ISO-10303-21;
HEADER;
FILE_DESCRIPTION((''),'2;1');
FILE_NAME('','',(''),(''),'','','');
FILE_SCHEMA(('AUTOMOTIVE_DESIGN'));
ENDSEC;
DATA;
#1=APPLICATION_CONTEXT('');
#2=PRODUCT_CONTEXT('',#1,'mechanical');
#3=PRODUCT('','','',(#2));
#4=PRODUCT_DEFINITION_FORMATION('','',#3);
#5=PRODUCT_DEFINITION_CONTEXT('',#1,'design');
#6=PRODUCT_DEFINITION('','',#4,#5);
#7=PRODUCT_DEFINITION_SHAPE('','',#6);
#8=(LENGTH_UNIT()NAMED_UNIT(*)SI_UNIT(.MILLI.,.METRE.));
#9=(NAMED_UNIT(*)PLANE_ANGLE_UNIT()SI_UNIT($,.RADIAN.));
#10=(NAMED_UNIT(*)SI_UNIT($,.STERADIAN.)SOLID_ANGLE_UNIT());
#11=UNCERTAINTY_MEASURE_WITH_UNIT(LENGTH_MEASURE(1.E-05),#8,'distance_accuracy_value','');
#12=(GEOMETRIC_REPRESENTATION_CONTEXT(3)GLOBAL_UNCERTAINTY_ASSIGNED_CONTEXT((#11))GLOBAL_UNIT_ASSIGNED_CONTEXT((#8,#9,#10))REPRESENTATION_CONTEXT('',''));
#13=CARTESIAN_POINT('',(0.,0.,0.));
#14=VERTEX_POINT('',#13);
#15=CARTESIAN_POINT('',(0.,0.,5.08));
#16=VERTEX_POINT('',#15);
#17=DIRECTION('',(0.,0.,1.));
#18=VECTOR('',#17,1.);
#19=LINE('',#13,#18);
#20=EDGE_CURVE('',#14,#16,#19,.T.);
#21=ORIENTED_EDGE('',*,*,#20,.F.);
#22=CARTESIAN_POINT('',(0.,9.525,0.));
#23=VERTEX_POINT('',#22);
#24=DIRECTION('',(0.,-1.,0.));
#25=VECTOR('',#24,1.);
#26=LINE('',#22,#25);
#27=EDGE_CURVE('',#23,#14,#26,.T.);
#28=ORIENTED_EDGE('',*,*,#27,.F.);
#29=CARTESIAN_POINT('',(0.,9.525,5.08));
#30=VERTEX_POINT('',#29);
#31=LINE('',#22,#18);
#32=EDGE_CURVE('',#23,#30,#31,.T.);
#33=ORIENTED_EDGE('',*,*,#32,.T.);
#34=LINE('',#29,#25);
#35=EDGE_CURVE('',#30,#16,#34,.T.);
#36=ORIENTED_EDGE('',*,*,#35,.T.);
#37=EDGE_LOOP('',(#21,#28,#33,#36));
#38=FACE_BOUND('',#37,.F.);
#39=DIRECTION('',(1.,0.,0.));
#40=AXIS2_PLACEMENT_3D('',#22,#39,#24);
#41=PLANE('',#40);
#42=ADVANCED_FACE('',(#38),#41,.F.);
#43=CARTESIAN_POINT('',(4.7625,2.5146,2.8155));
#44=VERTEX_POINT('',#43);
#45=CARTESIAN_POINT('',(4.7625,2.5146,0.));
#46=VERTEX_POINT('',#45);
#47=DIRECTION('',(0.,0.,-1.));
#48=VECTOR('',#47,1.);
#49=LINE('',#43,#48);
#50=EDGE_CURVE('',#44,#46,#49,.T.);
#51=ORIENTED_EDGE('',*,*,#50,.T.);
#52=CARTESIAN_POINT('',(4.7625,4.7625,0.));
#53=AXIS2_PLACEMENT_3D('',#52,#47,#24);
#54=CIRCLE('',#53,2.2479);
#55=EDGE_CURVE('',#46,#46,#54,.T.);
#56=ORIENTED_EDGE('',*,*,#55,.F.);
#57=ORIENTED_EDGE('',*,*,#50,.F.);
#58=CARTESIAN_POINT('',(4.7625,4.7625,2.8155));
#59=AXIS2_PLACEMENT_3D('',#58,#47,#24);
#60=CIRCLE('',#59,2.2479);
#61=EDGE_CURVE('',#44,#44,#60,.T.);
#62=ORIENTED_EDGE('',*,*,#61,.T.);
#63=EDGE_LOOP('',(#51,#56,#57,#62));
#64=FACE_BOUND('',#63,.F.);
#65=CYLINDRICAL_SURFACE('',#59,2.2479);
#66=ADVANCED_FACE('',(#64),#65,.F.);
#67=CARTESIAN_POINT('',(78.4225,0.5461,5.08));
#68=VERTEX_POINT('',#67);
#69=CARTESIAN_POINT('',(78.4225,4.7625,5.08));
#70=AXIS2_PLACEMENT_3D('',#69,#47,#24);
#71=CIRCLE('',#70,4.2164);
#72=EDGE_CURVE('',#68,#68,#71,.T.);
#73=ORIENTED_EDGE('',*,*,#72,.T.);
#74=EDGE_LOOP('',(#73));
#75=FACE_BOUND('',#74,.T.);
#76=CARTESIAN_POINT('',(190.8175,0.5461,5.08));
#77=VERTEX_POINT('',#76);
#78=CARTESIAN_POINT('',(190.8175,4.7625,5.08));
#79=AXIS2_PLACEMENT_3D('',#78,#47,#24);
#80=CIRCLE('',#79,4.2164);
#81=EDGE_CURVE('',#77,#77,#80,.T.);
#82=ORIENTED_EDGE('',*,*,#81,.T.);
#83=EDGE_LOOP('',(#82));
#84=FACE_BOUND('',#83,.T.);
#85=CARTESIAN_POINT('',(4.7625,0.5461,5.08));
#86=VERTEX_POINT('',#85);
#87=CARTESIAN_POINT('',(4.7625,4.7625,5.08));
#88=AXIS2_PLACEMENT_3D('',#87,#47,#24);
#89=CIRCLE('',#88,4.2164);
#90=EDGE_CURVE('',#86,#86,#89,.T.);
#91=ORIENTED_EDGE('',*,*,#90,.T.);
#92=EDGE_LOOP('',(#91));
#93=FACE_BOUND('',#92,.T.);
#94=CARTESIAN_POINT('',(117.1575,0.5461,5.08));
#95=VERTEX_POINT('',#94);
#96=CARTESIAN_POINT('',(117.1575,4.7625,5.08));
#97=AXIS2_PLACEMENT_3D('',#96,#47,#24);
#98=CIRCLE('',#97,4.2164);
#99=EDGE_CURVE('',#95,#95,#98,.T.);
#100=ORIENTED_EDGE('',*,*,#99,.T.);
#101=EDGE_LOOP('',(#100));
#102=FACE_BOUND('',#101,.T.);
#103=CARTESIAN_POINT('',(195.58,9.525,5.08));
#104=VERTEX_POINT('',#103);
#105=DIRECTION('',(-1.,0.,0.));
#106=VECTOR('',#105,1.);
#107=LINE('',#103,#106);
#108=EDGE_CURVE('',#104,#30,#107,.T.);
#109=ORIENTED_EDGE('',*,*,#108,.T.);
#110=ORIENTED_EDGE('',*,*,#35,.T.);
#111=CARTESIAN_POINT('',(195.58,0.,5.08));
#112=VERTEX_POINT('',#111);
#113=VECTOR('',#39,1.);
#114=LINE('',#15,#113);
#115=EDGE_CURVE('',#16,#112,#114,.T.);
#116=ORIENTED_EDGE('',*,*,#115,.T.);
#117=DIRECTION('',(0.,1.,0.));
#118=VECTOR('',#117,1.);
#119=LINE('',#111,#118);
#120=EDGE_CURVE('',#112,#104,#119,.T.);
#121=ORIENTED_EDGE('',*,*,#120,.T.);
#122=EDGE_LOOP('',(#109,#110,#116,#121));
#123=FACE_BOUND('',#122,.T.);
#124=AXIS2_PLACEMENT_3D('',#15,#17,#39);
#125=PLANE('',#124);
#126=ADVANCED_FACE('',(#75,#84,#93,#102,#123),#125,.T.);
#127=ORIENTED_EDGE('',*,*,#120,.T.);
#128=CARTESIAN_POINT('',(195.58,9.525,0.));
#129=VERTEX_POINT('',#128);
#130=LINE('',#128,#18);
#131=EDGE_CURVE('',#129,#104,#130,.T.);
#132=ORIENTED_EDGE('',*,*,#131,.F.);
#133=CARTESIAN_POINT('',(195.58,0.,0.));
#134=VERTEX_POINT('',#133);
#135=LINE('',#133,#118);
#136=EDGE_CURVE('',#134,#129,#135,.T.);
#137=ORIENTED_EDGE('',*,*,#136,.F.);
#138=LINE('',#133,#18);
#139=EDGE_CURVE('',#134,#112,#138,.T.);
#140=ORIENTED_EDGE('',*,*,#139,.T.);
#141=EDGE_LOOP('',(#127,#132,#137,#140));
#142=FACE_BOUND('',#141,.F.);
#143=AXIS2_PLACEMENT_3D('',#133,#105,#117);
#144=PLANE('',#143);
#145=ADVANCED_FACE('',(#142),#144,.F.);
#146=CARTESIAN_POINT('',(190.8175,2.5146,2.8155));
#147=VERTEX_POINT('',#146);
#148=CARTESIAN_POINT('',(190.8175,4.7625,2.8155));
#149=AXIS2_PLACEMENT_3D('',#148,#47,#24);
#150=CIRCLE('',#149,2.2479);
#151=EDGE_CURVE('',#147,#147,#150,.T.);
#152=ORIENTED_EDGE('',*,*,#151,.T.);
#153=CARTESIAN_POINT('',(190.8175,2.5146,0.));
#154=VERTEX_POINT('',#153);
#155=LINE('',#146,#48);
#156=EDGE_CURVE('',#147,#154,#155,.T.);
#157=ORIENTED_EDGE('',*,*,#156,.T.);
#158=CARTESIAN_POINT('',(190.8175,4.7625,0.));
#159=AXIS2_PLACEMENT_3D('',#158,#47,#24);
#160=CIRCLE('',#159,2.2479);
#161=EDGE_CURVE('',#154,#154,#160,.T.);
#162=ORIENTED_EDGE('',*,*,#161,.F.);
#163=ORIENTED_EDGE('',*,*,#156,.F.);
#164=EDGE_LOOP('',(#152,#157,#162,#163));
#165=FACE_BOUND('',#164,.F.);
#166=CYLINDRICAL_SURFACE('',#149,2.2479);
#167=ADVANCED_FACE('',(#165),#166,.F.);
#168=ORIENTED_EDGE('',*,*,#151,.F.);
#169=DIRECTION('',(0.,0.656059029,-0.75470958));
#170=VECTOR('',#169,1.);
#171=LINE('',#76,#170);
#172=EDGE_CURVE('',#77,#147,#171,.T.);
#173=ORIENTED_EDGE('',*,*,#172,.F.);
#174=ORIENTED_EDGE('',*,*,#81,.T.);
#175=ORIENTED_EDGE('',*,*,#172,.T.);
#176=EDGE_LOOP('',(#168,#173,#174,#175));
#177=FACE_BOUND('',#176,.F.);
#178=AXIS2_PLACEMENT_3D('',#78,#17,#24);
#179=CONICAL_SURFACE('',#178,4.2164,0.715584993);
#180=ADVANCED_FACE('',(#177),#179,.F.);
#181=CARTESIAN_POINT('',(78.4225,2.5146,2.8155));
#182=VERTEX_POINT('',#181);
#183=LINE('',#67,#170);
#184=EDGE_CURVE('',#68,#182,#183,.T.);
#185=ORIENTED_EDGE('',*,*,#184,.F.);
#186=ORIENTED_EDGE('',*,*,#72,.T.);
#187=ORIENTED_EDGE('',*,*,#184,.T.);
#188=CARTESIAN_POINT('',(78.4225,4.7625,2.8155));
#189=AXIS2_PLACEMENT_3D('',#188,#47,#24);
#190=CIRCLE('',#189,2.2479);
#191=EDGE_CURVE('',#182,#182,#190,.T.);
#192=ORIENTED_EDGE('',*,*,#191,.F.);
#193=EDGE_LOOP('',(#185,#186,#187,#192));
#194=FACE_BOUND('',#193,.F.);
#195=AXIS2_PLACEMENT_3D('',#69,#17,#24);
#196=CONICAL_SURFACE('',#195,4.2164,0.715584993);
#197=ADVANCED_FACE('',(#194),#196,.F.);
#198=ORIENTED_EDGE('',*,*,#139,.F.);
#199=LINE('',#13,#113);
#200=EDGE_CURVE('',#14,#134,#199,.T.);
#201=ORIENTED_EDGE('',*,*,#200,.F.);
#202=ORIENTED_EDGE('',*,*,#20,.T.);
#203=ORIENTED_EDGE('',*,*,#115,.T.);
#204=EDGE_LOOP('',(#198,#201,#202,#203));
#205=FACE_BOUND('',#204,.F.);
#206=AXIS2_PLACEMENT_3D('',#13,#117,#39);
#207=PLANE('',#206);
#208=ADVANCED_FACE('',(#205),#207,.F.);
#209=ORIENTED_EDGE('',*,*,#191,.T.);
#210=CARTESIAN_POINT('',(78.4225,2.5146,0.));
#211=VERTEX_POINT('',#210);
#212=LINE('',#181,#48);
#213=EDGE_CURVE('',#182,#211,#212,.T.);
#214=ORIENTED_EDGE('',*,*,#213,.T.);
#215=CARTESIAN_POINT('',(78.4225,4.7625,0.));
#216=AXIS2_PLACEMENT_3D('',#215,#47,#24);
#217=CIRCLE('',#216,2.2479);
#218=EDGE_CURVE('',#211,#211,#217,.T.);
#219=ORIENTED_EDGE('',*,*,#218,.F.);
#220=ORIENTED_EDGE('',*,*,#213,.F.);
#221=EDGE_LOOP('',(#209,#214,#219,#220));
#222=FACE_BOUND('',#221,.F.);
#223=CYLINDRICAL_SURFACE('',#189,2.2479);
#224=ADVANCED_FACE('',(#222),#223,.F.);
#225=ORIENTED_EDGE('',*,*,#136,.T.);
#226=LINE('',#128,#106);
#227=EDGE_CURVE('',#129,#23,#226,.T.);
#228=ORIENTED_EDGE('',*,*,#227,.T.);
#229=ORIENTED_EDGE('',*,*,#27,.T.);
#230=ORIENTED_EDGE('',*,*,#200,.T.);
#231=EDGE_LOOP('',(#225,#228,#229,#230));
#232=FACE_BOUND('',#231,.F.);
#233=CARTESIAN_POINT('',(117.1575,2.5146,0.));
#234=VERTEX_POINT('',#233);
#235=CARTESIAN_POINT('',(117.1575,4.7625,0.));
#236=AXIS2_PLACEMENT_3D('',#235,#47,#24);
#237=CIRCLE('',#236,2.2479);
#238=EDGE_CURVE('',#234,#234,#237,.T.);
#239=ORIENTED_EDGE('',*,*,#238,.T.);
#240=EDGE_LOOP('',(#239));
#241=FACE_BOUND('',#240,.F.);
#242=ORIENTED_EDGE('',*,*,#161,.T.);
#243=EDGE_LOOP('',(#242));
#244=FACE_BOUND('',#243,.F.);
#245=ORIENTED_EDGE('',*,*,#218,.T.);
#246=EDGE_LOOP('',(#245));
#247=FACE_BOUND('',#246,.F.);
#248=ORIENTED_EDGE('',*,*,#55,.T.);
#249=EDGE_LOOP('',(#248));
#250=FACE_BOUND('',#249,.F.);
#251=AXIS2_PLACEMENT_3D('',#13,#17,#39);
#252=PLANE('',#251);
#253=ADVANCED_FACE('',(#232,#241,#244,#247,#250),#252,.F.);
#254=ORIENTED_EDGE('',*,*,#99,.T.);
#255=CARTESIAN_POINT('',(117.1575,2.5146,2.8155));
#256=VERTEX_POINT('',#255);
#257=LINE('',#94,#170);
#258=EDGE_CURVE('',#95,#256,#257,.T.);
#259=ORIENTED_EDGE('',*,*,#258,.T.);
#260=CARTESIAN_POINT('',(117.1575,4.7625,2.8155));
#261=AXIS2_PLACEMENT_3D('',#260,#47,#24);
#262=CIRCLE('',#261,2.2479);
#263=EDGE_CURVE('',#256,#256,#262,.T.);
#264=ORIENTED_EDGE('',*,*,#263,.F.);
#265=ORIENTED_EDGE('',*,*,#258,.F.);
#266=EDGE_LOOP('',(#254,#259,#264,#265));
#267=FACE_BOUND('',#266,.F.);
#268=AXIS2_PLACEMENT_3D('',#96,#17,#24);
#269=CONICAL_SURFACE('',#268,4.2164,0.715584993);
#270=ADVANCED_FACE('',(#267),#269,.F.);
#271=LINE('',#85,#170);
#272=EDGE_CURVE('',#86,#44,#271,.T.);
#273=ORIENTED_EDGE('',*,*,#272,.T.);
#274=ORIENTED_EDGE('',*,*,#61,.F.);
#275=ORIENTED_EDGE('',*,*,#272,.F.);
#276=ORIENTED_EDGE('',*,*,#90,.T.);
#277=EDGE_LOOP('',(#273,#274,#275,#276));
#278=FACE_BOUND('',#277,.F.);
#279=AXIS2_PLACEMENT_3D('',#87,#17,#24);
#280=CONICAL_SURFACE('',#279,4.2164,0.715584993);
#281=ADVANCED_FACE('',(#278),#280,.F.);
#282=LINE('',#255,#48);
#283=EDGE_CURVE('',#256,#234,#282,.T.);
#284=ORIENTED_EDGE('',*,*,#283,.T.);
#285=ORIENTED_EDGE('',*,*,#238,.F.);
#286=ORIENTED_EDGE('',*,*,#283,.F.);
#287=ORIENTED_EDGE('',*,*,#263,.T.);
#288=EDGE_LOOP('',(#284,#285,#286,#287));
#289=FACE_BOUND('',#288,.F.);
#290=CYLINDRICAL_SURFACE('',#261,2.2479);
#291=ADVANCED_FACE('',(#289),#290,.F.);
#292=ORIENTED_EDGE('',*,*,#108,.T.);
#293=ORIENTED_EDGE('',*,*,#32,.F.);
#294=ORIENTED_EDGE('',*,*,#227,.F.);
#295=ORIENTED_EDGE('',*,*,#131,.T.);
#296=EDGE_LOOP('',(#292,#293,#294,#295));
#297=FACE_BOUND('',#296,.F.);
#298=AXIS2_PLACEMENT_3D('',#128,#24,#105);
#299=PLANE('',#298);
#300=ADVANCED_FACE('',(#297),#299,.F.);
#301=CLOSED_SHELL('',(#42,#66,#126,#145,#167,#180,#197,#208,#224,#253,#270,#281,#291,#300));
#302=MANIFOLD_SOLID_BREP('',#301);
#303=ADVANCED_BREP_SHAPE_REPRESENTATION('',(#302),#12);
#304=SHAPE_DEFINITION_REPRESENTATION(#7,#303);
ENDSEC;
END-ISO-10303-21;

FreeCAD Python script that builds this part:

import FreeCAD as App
import Part
import Sketcher
Q = App.Units.Quantity


def add_polygon(sketch, points):
    """Adds a closed chain of lines whose ends are joined by coincident constraints."""
    first, n = sketch.GeometryCount, len(points)
    for a, b in zip(points, points[1:] + points[:1]):
        sketch.addGeometry(Part.LineSegment(App.Vector(*a, 0), App.Vector(*b, 0)), False)
    for i in range(n):
        sketch.addConstraint(Sketcher.Constraint("Coincident", first + i, 2, first + (i + 1) % n, 1))

doc = App.newDocument("Part")
body = doc.addObject("PartDesign::Body", "Body")

# Sketch on XY plane
sketch1 = body.newObject("Sketcher::SketchObject", "Sketch")
sketch1.AttachmentSupport = (doc.getObject("XY_Plane"), [""])
sketch1.MapMode = "FlatFace"
add_polygon(sketch1, [(0, 9.525), (0, 0), (195.58, 0), (195.58, 9.525)])  # lines 0-3
sketch1.addConstraint(Sketcher.Constraint("Vertical", 0))
sketch1.addConstraint(Sketcher.Constraint("Horizontal", 1))
sketch1.addConstraint(Sketcher.Constraint("Vertical", 2))
sketch1.addConstraint(Sketcher.Constraint("Horizontal", 3))
sketch1.addConstraint(Sketcher.Constraint("Coincident", 0, 2, -1, 1))
sketch1.addConstraint(Sketcher.Constraint("DistanceX", 1, 1, 1, 2, Q("7.7 in")))
sketch1.addConstraint(Sketcher.Constraint("DistanceY", 0, 2, 0, 1, Q("0.375 in")))
pad1 = body.newObject("PartDesign::Pad", "Pad")
pad1.Profile = sketch1
pad1.Length = Q("0.2 in")

# Sketch on XY plane
sketch2 = body.newObject("Sketcher::SketchObject", "Sketch001")
sketch2.AttachmentSupport = (doc.getObject("XY_Plane"), [""])
sketch2.MapMode = "FlatFace"
sketch2.AttachmentOffset = App.Placement(App.Vector(0, 0, 0.2 * 25.4), App.Rotation())
sketch2.addGeometry(Part.Circle(App.Vector(4.7625, 4.7625, 0), App.Vector(0, 0, 1), 2.2479), False)
sketch2.addGeometry(Part.Circle(App.Vector(78.4225, 4.7625, 0), App.Vector(0, 0, 1), 2.2479), False)
sketch2.addGeometry(Part.Circle(App.Vector(117.1575, 4.7625, 0), App.Vector(0, 0, 1), 2.2479), False)
sketch2.addGeometry(Part.Circle(App.Vector(190.8175, 4.7625, 0), App.Vector(0, 0, 1), 2.2479), False)
sketch2.addConstraint(Sketcher.Constraint("Equal", 0, 1))
sketch2.addConstraint(Sketcher.Constraint("Equal", 1, 2))
sketch2.addConstraint(Sketcher.Constraint("Equal", 2, 3))
sketch2.addConstraint(Sketcher.Constraint("Horizontal", 0, 3, 1, 3))
sketch2.addConstraint(Sketcher.Constraint("Horizontal", 1, 3, 2, 3))
sketch2.addConstraint(Sketcher.Constraint("Horizontal", 2, 3, 3, 3))
sketch2.addConstraint(Sketcher.Constraint("Diameter", 0, Q("0.177 in")))
sketch2.addConstraint(Sketcher.Constraint("DistanceX", 0, 3, 1, 3, Q("2.9 in")))
sketch2.addConstraint(Sketcher.Constraint("DistanceX", 2, 3, 3, 3, Q("2.9 in")))
sketch2.addConstraint(Sketcher.Constraint("DistanceX", -1, 1, 0, 3, Q("0.1875 in")))
sketch2.addConstraint(Sketcher.Constraint("DistanceY", -1, 1, 0, 3, Q("0.1875 in")))
sketch2.addConstraint(Sketcher.Constraint("DistanceX", 1, 3, 2, 3, Q("1.525 in")))
doc.recompute()
hole = body.newObject("PartDesign::Hole", "Hole")
hole.Profile = sketch2
hole.ThreadType = "None"
hole.Diameter = Q("0.177 in")
hole.DepthType = "ThroughAll"
hole.HoleCutType = "Countersink"
hole.HoleCutDiameter = Q("0.332 in")
hole.HoleCutCountersinkAngle = 82

doc.recompute()
